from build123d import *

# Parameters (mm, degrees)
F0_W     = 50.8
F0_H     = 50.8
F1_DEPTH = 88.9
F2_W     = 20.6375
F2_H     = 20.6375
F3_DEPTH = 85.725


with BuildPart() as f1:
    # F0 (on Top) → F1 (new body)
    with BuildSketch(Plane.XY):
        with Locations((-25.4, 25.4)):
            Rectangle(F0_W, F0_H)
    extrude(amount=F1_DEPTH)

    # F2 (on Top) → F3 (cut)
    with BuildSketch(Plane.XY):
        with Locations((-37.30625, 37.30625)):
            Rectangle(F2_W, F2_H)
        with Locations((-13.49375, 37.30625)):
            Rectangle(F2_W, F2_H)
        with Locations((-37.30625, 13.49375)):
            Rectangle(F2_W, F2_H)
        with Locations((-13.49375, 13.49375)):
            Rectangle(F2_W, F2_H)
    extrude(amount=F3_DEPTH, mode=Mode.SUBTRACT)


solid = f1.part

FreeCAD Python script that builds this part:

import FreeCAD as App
import Part
import Sketcher

V = App.Vector
Q = App.Units.Quantity


def add_polygon(sketch, points):
    """Adds a closed chain of lines whose ends are joined by coincident constraints."""
    first, n = sketch.GeometryCount, len(points)
    for a, b in zip(points, points[1:] + points[:1]):
        sketch.addGeometry(Part.LineSegment(App.Vector(*a, 0), App.Vector(*b, 0)), False)
    for i in range(n):
        sketch.addConstraint(Sketcher.Constraint("Coincident", first + i, 2, first + (i + 1) % n, 1))

doc = App.newDocument("Part")
body = doc.addObject("PartDesign::Body", "Body")

# Sketch on XY plane
sketch1 = body.newObject("Sketcher::SketchObject", "Sketch")
sketch1.AttachmentSupport = (doc.getObject("XY_Plane"), [""])
sketch1.MapMode = "FlatFace"
add_polygon(sketch1, [(-51, 51), (-51, 0), (0, 0), (0, 51)])  # lines 0-3
sketch1.addConstraint([
    Sketcher.Constraint("Vertical", 0),
    Sketcher.Constraint("Horizontal", 1),
    Sketcher.Constraint("Vertical", 2),
    Sketcher.Constraint("Horizontal", 3),
    Sketcher.Constraint("Coincident", 1, 2, -1, 1),
    Sketcher.Constraint("Equal", 3, 0),
    Sketcher.Constraint("DistanceX", 1, 1, 1, 2, Q("2 in")),
])
pad1 = body.newObject("PartDesign::Pad", "Pad")
pad1.Profile = sketch1
pad1.Length = Q("3.5 in")

# Sketch on XY plane
sketch2 = body.newObject("Sketcher::SketchObject", "Sketch001")
sketch2.AttachmentSupport = (doc.getObject("XY_Plane"), [""])
sketch2.MapMode = "FlatFace"
add_polygon(sketch2, [(-48, 48), (-48, 27), (-27, 27), (-27, 48)])  # lines 0-3
add_polygon(sketch2, [(-24, 48), (-24, 27), (-3, 27), (-3, 48)])  # lines 4-7
add_polygon(sketch2, [(-48, 24), (-48, 3), (-27, 3), (-27, 24)])  # lines 8-11
add_polygon(sketch2, [(-24, 24), (-24, 3), (-3, 3), (-3, 24)])  # lines 12-15
sketch2.addConstraint([
    Sketcher.Constraint("Vertical", 0),
    Sketcher.Constraint("Horizontal", 1),
    Sketcher.Constraint("Vertical", 2),
    Sketcher.Constraint("Horizontal", 3),
    Sketcher.Constraint("Vertical", 4),
    Sketcher.Constraint("Horizontal", 5),
    Sketcher.Constraint("Vertical", 6),
    Sketcher.Constraint("Horizontal", 7),
    Sketcher.Constraint("Vertical", 8),
    Sketcher.Constraint("Horizontal", 9),
    Sketcher.Constraint("Vertical", 10),
    Sketcher.Constraint("Horizontal", 11),
    Sketcher.Constraint("Vertical", 12),
    Sketcher.Constraint("Horizontal", 13),
    Sketcher.Constraint("Vertical", 14),
    Sketcher.Constraint("Horizontal", 15),
    Sketcher.Constraint("Horizontal", 1, 2, 4, 2),
    Sketcher.Constraint("Horizontal", 3, 2, 6, 2),
    Sketcher.Constraint("Horizontal", 9, 2, 12, 2),
    Sketcher.Constraint("Horizontal", 11, 2, 14, 2),
    Sketcher.Constraint("Vertical", 3, 2, 8, 2),
    Sketcher.Constraint("Vertical", 2, 2, 9, 2),
    Sketcher.Constraint("Vertical", 7, 2, 12, 2),
    Sketcher.Constraint("Vertical", 6, 2, 13, 2),
    Sketcher.Constraint("Equal", 3, 5),
    Sketcher.Constraint("Equal", 15, 0),
    Sketcher.Constraint("Equal", 6, 8),
    Sketcher.Constraint("DistanceX", 1, 1, 1, 2, Q("0.8125 in")),
    Sketcher.Constraint("DistanceX", 0, 2, 5, 2, Q("1.75 in")),
    Sketcher.Constraint("DistanceY", 8, 2, 3, 2, Q("1.75 in")),
    Sketcher.Constraint("DistanceX", 0, 2, -1, 1, Q("1.875 in")),
    Sketcher.Constraint("DistanceY", -1, 1, 0, 2, Q("1.0625 in")),
])
pocket1 = body.newObject("PartDesign::Pocket", "Pocket")
pocket1.Profile = sketch2
pocket1.Length = Q("3.375 in")
pocket1.Reversed = True

doc.recompute()
